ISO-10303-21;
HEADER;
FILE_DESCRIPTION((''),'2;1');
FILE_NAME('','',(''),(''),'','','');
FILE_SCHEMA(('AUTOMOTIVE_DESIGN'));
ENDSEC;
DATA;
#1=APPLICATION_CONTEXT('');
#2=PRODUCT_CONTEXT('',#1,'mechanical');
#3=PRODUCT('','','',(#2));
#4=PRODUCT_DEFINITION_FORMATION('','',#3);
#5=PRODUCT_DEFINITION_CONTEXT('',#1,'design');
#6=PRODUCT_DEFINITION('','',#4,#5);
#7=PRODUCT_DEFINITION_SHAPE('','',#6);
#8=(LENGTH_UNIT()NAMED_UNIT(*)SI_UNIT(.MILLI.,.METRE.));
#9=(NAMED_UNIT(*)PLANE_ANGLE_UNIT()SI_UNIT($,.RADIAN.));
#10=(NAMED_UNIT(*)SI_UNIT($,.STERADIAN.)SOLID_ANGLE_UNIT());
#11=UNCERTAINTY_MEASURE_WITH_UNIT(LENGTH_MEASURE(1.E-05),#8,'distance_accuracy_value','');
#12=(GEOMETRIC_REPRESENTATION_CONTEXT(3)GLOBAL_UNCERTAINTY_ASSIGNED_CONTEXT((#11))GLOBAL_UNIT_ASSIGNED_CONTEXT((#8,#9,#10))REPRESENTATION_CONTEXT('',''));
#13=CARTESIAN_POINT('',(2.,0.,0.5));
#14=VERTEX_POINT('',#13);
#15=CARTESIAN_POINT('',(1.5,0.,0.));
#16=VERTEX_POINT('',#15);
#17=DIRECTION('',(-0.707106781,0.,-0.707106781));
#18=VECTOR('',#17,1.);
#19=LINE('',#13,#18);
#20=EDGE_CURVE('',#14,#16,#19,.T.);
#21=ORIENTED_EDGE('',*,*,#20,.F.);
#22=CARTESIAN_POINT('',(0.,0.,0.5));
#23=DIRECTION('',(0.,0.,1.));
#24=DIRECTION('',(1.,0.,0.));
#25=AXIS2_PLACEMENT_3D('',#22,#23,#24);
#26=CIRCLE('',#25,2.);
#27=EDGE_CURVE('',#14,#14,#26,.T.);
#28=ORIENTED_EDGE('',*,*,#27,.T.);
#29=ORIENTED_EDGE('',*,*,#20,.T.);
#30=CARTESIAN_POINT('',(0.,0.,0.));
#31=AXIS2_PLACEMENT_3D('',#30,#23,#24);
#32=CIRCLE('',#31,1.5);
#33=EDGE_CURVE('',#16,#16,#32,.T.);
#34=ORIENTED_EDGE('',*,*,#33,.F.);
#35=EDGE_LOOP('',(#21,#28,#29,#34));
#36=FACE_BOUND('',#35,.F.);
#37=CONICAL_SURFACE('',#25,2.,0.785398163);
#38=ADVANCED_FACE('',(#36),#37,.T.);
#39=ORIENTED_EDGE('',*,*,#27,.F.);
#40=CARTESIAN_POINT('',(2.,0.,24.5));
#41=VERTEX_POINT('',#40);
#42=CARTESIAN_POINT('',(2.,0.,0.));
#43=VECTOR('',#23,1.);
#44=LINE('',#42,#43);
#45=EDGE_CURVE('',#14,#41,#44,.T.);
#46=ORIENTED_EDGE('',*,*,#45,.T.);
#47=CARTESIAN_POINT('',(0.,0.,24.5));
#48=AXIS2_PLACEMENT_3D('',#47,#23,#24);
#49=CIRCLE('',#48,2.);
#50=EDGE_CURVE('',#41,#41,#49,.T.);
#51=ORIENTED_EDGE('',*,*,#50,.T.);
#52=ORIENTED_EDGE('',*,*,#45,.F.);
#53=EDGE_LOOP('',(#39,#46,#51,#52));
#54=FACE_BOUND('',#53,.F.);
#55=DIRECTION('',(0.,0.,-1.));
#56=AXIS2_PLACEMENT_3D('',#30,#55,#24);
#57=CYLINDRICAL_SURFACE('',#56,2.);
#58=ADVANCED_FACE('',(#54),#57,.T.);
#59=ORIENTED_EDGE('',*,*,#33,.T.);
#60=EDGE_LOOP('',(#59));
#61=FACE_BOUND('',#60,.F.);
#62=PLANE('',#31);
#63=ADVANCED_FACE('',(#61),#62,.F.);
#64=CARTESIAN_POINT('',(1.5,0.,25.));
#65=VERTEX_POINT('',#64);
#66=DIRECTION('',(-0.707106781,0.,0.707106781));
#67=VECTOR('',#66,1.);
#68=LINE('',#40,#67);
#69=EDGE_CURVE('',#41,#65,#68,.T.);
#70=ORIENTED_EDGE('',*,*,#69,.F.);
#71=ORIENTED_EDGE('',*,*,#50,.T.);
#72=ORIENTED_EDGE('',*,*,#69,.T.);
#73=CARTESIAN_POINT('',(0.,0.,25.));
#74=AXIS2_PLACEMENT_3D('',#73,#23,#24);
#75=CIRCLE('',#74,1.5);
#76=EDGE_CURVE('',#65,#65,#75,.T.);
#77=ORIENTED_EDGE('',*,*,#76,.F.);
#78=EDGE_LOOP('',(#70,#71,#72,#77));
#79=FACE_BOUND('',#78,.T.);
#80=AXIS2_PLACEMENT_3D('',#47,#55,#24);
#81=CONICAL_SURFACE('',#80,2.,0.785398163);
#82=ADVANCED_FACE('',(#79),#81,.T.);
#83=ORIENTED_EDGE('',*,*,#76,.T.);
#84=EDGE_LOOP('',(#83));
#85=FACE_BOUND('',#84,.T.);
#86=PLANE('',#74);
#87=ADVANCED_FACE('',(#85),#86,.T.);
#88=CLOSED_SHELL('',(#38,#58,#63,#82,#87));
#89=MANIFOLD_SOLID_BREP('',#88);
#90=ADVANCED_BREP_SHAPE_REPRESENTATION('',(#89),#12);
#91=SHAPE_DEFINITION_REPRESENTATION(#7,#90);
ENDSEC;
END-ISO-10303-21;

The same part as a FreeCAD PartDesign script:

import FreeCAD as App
import Part
import Sketcher
Q = App.Units.Quantity


def edges_at(feature, points):
    """Names of the edges that pass closest to the given points."""
    edges = feature.Shape.Edges
    near = lambda p: min(range(len(edges)), key=lambda i: edges[i].distToShape(Part.Vertex(*p))[0])
    return sorted({f"Edge{near(p) + 1}" for p in points})

doc = App.newDocument("Part")
body = doc.addObject("PartDesign::Body", "Body")

# Sketch on XY plane
sketch1 = doc.addObject("Sketcher::SketchObject", "Sketch")
body.addObject(sketch1)
sketch1.AttachmentSupport = (doc.XY_Plane, [""])
sketch1.MapMode = "FlatFace"
sketch1.addGeometry(Part.Circle(App.Vector(0, 0, 0), App.Vector(0, 0, 1), 2), False)
sketch1.addConstraint(Sketcher.Constraint("Coincident", 0, 3, -1, 1))
sketch1.addConstraint(Sketcher.Constraint("Diameter", 0, Q("4 mm")))
pad1 = doc.addObject("PartDesign::Pad", "Pad")
body.addObject(pad1)
pad1.Profile = sketch1
pad1.Length = 25
doc.recompute()

chamfer = doc.addObject("PartDesign::Chamfer", "Chamfer")
body.addObject(chamfer)
chamfer.Base = (pad1, edges_at(pad1, [(-2, 0, 0)]))
chamfer.Size = 0.5
doc.recompute()

chamfer2 = doc.addObject("PartDesign::Chamfer", "Chamfer001")
body.addObject(chamfer2)
chamfer2.Base = (chamfer, edges_at(chamfer, [(-2, 0, 25)]))
chamfer2.Size = 0.5

doc.recompute()
